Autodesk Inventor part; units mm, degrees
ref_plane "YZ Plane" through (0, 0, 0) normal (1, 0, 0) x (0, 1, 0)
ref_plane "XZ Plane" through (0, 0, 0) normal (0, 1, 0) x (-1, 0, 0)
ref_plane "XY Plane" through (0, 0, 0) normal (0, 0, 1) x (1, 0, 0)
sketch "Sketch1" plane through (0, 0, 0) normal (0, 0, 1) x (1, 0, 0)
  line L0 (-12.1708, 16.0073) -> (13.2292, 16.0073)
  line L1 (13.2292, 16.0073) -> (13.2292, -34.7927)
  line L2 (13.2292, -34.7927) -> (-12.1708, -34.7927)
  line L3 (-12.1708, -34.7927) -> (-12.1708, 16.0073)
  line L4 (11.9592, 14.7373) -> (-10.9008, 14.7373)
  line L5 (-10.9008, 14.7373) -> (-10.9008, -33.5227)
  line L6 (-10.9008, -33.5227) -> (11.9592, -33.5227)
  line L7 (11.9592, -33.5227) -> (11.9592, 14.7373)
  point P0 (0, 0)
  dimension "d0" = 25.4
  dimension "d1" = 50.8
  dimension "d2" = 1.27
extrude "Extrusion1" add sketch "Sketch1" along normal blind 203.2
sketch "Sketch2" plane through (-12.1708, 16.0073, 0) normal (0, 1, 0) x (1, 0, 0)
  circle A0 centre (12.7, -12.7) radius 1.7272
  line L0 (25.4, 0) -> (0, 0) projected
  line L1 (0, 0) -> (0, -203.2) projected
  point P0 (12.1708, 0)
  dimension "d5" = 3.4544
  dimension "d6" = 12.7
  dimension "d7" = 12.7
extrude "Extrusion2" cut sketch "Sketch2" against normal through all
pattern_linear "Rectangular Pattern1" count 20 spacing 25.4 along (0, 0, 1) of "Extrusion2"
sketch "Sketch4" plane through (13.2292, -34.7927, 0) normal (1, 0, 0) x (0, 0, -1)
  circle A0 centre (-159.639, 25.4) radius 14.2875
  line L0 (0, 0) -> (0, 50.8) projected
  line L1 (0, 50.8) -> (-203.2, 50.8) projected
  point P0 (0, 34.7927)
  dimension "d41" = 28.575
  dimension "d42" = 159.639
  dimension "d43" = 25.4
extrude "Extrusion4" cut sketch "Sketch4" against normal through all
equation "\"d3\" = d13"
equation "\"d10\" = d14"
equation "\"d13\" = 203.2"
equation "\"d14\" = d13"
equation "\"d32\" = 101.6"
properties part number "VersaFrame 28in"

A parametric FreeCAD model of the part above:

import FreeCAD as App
import Part
import Sketcher
Q = App.Units.Quantity

doc = App.newDocument("Part")
params = doc.addObject("Spreadsheet::Sheet", "Params")
for row, (alias, value) in enumerate([
    ("sketch1_width", "1 in"),
    ("sketch1_height", "2 in"),
    ("pad1_length", "8 in"),
    ("sketch2_diameter", "0.136 in"),
    ("linearpattern_pitch", "1 in"),
    ("sketch3_diameter", "1.125 in"),
], start=1):
    params.set(f"A{row}", alias)
    params.set(f"B{row}", "=" + value)
    params.setAlias(f"B{row}", alias)

body = doc.addObject("PartDesign::Body", "Body")

sketch1 = body.newObject("Sketcher::SketchObject", "Sketch")
sketch1.AttachmentSupport = (doc.getObject("XY_Plane"), [""])
sketch1.MapMode = "FlatFace"
sketch1.addGeometry(Part.LineSegment(App.Vector(13, 16, 0), App.Vector(-12, 16, 0)), False)
sketch1.addGeometry(Part.LineSegment(App.Vector(-12, 16, 0), App.Vector(-12, -35, 0)), False)
sketch1.addGeometry(Part.LineSegment(App.Vector(-12, -35, 0), App.Vector(13, -35, 0)), False)
sketch1.addGeometry(Part.LineSegment(App.Vector(13, -35, 0), App.Vector(13, 16, 0)), False)
sketch1.addGeometry(Part.LineSegment(App.Vector(-11, 15, 0), App.Vector(12, 15, 0)), False)
sketch1.addGeometry(Part.LineSegment(App.Vector(12, 15, 0), App.Vector(12, -34, 0)), False)
sketch1.addGeometry(Part.LineSegment(App.Vector(12, -34, 0), App.Vector(-11, -34, 0)), False)
sketch1.addGeometry(Part.LineSegment(App.Vector(-11, -34, 0), App.Vector(-11, 15, 0)), False)
sketch1.addConstraint(Sketcher.Constraint("Coincident", 0, 2, 1, 1))
sketch1.addConstraint(Sketcher.Constraint("Coincident", 1, 2, 2, 1))
sketch1.addConstraint(Sketcher.Constraint("Coincident", 2, 2, 3, 1))
sketch1.addConstraint(Sketcher.Constraint("Coincident", 3, 2, 0, 1))
sketch1.addConstraint(Sketcher.Constraint("Coincident", 4, 2, 5, 1))
sketch1.addConstraint(Sketcher.Constraint("Coincident", 5, 2, 6, 1))
sketch1.addConstraint(Sketcher.Constraint("Coincident", 6, 2, 7, 1))
sketch1.addConstraint(Sketcher.Constraint("Coincident", 7, 2, 4, 1))
sketch1.addConstraint(Sketcher.Constraint("Horizontal", 0))
sketch1.addConstraint(Sketcher.Constraint("Vertical", 1))
sketch1.addConstraint(Sketcher.Constraint("Horizontal", 2))
sketch1.addConstraint(Sketcher.Constraint("Vertical", 3))
sketch1.addConstraint(Sketcher.Constraint("Horizontal", 4))
sketch1.addConstraint(Sketcher.Constraint("Vertical", 5))
sketch1.addConstraint(Sketcher.Constraint("Horizontal", 6))
sketch1.addConstraint(Sketcher.Constraint("Vertical", 7))
sketch1.addConstraint(Sketcher.Constraint("DistanceX", 0, 2, 0, 1, Q("1 in")))
sketch1.addConstraint(Sketcher.Constraint("DistanceY", 1, 2, 1, 1, Q("2 in")))
sketch1.addConstraint(Sketcher.Constraint("DistanceX", 4, 2, 3, 2, Q("0.05 in")))
sketch1.addConstraint(Sketcher.Constraint("DistanceY", 4, 2, 3, 2, Q("0.05 in")))
sketch1.addConstraint(Sketcher.Constraint("DistanceY", 2, 2, 5, 2, Q("0.05 in")))
sketch1.addConstraint(Sketcher.Constraint("DistanceX", 1, 2, 6, 2, Q("0.05 in")))
sketch1.addConstraint(Sketcher.Constraint("DistanceY", -1, 1, 0, 2, Q("0.6302 in")))
sketch1.addConstraint(Sketcher.Constraint("DistanceX", 0, 2, -1, 1, 12.1708))
sketch1.setExpression("Constraints[16]", "Params.sketch1_width")
sketch1.setExpression("Constraints[17]", "Params.sketch1_height")
pad1 = body.newObject("PartDesign::Pad", "Pad")
pad1.Profile = sketch1
pad1.setExpression("Length", "Params.pad1_length")

sketch2 = body.newObject("Sketcher::SketchObject", "Sketch001")
sketch2.AttachmentSupport = (doc.getObject("XZ_Plane"), [""])
sketch2.MapMode = "FlatFace"
sketch2.AttachmentOffset = App.Placement(App.Vector(0, 0, -0.6302087 * 25.4), App.Rotation())
sketch2.addGeometry(Part.Circle(App.Vector(0.5, 12.7, 0), App.Vector(0, 0, 1), 1.7), False)
sketch2.addConstraint(Sketcher.Constraint("Diameter", 0, Q("0.136 in")))
sketch2.addConstraint(Sketcher.Constraint("DistanceY", -1, 1, 0, 3, Q("0.5 in")))
sketch2.addConstraint(Sketcher.Constraint("DistanceX", -1, 1, 0, 3, 0.5292))
sketch2.setExpression("Constraints[0]", "Params.sketch2_diameter")
pocket1 = body.newObject("PartDesign::Pocket", "Pocket")
pocket1.Profile = sketch2
pocket1.Type = "ThroughAll"
pocket1.Reversed = True
doc.recompute()

linearpattern = body.newObject("PartDesign::LinearPattern", "LinearPattern")
linearpattern.Originals = [pocket1]
linearpattern.Direction = (doc.getObject("Z_Axis"), [""])
linearpattern.Mode = "offset"
linearpattern.setExpression("Offset", "Params.linearpattern_pitch")
linearpattern.Occurrences = 20
body.Tip = linearpattern

sketch3 = body.newObject("Sketcher::SketchObject", "Sketch002")
sketch3.AttachmentSupport = (doc.getObject("YZ_Plane"), [""])
sketch3.MapMode = "FlatFace"
sketch3.AttachmentOffset = App.Placement(App.Vector(0, 0, 13.2292), App.Rotation())
sketch3.addGeometry(Part.Circle(App.Vector(-9, 160, 0), App.Vector(0, 0, 1), 14), False)
sketch3.addConstraint(Sketcher.Constraint("Diameter", 0, Q("1.125 in")))
sketch3.addConstraint(Sketcher.Constraint("DistanceY", -1, 1, 0, 3, Q("6.285 in")))
sketch3.addConstraint(Sketcher.Constraint("DistanceX", 0, 3, -1, 1, Q("0.3698 in")))
sketch3.setExpression("Constraints[0]", "Params.sketch3_diameter")
pocket2 = body.newObject("PartDesign::Pocket", "Pocket001")
pocket2.Profile = sketch3
pocket2.Type = "ThroughAll"

doc.recompute()
